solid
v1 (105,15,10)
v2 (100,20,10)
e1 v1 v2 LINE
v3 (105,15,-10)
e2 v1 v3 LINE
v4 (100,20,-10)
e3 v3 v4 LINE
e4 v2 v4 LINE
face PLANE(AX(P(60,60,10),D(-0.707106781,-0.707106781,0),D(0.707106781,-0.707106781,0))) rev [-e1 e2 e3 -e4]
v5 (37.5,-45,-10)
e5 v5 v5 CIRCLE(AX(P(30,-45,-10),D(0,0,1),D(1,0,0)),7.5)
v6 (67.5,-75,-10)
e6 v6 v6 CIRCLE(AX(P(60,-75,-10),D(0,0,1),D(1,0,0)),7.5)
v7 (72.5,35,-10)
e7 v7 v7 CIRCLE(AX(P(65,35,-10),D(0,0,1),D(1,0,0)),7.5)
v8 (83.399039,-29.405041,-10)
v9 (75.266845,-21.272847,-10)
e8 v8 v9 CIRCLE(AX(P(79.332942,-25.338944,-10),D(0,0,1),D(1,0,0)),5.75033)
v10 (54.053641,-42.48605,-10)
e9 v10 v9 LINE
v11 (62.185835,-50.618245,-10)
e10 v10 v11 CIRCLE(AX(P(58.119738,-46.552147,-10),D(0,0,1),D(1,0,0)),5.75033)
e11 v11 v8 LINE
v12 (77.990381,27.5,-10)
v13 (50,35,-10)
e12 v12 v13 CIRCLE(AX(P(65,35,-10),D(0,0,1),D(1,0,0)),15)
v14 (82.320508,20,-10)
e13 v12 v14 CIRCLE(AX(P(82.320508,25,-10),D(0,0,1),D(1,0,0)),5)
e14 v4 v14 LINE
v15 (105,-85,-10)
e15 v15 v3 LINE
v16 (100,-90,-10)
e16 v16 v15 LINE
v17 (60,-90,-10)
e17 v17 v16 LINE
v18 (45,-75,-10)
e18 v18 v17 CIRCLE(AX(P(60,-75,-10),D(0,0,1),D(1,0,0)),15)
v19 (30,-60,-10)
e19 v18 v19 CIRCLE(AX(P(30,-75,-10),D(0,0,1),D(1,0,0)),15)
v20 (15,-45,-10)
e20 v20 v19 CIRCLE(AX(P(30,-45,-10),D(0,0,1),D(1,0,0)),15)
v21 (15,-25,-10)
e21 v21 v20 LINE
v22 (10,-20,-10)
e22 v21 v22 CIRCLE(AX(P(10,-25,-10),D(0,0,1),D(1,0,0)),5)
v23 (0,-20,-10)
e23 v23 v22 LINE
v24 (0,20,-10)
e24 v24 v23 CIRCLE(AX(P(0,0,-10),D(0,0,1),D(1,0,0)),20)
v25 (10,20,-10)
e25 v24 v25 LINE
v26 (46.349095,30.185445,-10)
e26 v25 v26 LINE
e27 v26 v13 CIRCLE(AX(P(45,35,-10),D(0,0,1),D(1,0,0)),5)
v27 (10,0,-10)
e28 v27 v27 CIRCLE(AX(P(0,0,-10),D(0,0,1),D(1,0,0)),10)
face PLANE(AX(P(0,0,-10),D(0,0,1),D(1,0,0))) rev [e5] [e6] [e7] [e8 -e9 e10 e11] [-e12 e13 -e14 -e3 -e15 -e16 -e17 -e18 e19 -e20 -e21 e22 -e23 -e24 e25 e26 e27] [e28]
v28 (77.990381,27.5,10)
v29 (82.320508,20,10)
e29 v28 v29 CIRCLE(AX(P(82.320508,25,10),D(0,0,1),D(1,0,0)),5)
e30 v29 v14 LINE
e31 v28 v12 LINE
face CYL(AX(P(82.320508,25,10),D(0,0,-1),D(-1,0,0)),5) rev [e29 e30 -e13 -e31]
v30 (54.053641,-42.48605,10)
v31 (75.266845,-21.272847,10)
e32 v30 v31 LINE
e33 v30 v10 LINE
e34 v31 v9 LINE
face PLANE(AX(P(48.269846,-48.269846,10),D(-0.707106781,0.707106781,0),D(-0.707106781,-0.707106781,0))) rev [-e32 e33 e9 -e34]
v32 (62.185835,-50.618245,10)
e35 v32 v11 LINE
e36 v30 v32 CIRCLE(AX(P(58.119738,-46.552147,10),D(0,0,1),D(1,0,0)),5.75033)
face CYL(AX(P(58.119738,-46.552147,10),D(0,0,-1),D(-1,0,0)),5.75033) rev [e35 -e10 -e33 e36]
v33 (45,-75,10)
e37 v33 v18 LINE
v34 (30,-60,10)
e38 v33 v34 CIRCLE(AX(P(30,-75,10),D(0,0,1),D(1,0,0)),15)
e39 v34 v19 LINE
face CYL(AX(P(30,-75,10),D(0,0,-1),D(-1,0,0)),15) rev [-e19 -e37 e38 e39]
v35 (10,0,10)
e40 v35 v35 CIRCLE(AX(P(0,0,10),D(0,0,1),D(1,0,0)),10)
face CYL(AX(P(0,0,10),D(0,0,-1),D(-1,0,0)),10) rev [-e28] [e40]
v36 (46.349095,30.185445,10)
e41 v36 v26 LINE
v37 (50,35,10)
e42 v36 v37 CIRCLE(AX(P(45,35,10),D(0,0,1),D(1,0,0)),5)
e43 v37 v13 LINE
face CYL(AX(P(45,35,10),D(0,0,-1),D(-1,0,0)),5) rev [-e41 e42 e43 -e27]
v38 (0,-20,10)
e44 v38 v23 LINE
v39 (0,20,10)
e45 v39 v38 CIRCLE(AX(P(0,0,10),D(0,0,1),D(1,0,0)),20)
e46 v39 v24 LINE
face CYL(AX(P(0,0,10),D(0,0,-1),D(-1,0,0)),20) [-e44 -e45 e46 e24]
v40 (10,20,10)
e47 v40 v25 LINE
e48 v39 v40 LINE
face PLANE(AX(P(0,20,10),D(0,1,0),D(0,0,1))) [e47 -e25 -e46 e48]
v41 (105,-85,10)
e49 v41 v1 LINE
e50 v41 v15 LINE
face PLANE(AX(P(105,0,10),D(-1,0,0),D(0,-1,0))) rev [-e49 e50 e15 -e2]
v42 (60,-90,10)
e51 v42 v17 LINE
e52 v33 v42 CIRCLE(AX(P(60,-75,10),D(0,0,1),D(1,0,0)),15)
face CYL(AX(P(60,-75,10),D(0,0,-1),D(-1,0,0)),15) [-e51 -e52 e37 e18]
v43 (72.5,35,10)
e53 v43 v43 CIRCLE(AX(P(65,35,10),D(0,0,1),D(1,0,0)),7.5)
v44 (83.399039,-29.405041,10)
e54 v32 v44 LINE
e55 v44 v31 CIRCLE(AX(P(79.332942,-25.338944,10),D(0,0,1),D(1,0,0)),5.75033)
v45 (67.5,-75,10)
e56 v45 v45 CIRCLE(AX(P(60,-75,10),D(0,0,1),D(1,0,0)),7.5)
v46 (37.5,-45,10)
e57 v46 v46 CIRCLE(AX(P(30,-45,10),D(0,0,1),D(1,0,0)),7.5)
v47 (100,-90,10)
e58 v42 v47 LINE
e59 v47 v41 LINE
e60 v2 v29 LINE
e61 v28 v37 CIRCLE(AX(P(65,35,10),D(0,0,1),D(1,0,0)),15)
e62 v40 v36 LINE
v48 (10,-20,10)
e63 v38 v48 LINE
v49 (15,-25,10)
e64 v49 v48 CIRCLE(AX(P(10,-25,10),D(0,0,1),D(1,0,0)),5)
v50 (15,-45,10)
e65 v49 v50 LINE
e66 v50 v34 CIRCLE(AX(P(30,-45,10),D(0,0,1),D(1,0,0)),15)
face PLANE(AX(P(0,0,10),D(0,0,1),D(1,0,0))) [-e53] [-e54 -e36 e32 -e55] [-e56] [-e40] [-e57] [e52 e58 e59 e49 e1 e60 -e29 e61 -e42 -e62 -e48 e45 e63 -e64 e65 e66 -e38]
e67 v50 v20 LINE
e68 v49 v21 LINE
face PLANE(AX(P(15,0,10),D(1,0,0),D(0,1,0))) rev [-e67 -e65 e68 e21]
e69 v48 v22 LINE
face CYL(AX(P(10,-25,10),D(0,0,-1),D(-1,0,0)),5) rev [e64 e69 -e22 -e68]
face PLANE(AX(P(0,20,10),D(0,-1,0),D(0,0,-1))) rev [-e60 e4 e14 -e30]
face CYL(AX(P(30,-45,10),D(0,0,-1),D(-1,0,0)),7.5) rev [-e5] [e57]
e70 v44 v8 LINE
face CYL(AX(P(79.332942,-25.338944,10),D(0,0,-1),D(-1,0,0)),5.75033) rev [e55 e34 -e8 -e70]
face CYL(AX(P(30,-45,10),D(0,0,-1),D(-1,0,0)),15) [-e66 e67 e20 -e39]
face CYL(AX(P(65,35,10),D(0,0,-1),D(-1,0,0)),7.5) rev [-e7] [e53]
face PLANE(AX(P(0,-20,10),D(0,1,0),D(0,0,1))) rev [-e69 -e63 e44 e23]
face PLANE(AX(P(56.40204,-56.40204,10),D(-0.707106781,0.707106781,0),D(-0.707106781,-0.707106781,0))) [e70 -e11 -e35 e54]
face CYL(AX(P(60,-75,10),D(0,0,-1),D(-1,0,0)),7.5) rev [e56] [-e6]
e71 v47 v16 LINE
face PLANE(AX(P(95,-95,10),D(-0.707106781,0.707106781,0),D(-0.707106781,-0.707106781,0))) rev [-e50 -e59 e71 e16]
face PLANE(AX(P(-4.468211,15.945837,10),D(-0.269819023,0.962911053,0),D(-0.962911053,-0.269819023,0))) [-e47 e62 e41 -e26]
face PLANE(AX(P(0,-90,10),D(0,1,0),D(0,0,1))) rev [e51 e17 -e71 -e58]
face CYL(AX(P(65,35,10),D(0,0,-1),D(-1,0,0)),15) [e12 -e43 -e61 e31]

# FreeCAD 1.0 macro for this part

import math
import FreeCAD as App
import Part
import Sketcher

V = App.Vector
Q = App.Units.Quantity

doc = App.newDocument("Part")
body = doc.addObject("PartDesign::Body", "Body")

sketch1 = body.newObject("Sketcher::SketchObject", "Sketch")
sketch1.AttachmentSupport = (doc.getObject("XY_Plane"), [""])
sketch1.MapMode = "FlatFace"
sketch1.addGeometry([
    Part.ArcOfCircle(Part.Circle(V(0, 0, 0), V(0, 0, 1), 20), math.radians(90), math.radians(270)),
    Part.LineSegment(V(0, -20, 0), V(10, -20, 0)),
    Part.ArcOfCircle(Part.Circle(V(10, -25, 0), V(0, 0, 1), 5), math.radians(0), math.radians(90)),
    Part.LineSegment(V(15, -25, 0), V(15, -45, 0)),
    Part.ArcOfCircle(Part.Circle(V(30, -45, 0), V(0, 0, 1), 15), math.radians(180), math.radians(270)),
    Part.ArcOfCircle(Part.Circle(V(30, -75, 0), V(0, 0, 1), 15), math.radians(0), math.radians(90)),
    Part.ArcOfCircle(Part.Circle(V(60, -75, 0), V(0, 0, 1), 15), math.radians(180), math.radians(270)),
    Part.LineSegment(V(60, -90, 0), V(100, -90, 0)),
    Part.LineSegment(V(100, -90, 0), V(105, -85, 0)),
    Part.LineSegment(V(105, -85, 0), V(105, 15, 0)),
    Part.LineSegment(V(105, 15, 0), V(100, 20, 0)),
    Part.LineSegment(V(100, 20, 0), V(82, 20, 0)),
    Part.ArcOfCircle(Part.Circle(V(82, 25, 0), V(0, 0, 1), 5), math.radians(150), math.radians(270)),
    Part.ArcOfCircle(Part.Circle(V(65, 35, 0), V(0, 0, 1), 15), math.radians(-30), math.radians(180)),
    Part.ArcOfCircle(Part.Circle(V(45, 35, 0), V(0, 0, 1), 5), math.radians(-74), math.radians(0)),
    Part.LineSegment(V(46, 30, 0), V(10, 20, 0)),
    Part.LineSegment(V(10, 20, 0), V(0, 20, 0)),
    Part.Circle(V(30, -45, 0), V(0, 0, 1), 8),
    Part.Circle(V(60, -75, 0), V(0, 0, 1), 8),
    Part.LineSegment(V(83, -29, 0), V(62, -51, 0)),
    Part.ArcOfCircle(Part.Circle(V(58, -47, 0), V(0, 0, 1), 6), math.radians(135), math.radians(315)),
    Part.LineSegment(V(54, -42, 0), V(75, -21, 0)),
    Part.ArcOfCircle(Part.Circle(V(79, -25, 0), V(0, 0, 1), 6), math.radians(-45), math.radians(135)),
    Part.Circle(V(0, 0, 0), V(0, 0, 1), 10),
    Part.Circle(V(65, 35, 0), V(0, 0, 1), 8),
], False)
sketch1.addConstraint([
    Sketcher.Constraint("Tangent", 0, 2, 1, 1),
    Sketcher.Constraint("Tangent", 1, 2, 2, 2),
    Sketcher.Constraint("Tangent", 2, 1, 3, 1),
    Sketcher.Constraint("Tangent", 3, 2, 4, 1),
    Sketcher.Constraint("Tangent", 4, 2, 5, 2),
    Sketcher.Constraint("Tangent", 5, 1, 6, 1),
    Sketcher.Constraint("Tangent", 6, 2, 7, 1),
    Sketcher.Constraint("Coincident", 7, 2, 8, 1),
    Sketcher.Constraint("Coincident", 8, 2, 9, 1),
    Sketcher.Constraint("Coincident", 9, 2, 10, 1),
    Sketcher.Constraint("Coincident", 10, 2, 11, 1),
    Sketcher.Constraint("Tangent", 11, 2, 12, 2),
    Sketcher.Constraint("Tangent", 12, 1, 13, 1),
    Sketcher.Constraint("Tangent", 13, 2, 14, 2),
    Sketcher.Constraint("Tangent", 14, 1, 15, 1),
    Sketcher.Constraint("Coincident", 15, 2, 16, 1),
    Sketcher.Constraint("Tangent", 16, 2, 0, 1),
    Sketcher.Constraint("Tangent", 19, 2, 20, 2),
    Sketcher.Constraint("Tangent", 20, 1, 21, 1),
    Sketcher.Constraint("Tangent", 21, 2, 22, 2),
    Sketcher.Constraint("Tangent", 22, 1, 19, 1),
    Sketcher.Constraint("Horizontal", 1),
    Sketcher.Constraint("Vertical", 3),
    Sketcher.Constraint("Horizontal", 7),
    Sketcher.Constraint("Vertical", 9),
    Sketcher.Constraint("Horizontal", 11),
    Sketcher.Constraint("Horizontal", 16),
    Sketcher.Constraint("Coincident", 0, 3, -1, 1),
    Sketcher.Constraint("Coincident", 23, 3, -1, 1),
    Sketcher.Constraint("Coincident", 17, 3, 4, 3),
    Sketcher.Constraint("Coincident", 18, 3, 6, 3),
    Sketcher.Constraint("Coincident", 24, 3, 13, 3),
    Sketcher.Constraint("Equal", 4, 5),
    Sketcher.Constraint("Equal", 5, 6),
    Sketcher.Constraint("Equal", 2, 12),
    Sketcher.Constraint("Equal", 6, 13),
    Sketcher.Constraint("Equal", 12, 14),
    Sketcher.Constraint("Equal", 17, 18),
    Sketcher.Constraint("Equal", 20, 22),
    Sketcher.Constraint("Equal", 18, 24),
    Sketcher.Constraint("Perpendicular", 8, 10),
    Sketcher.Constraint("Perpendicular", 10, 19),
    Sketcher.Constraint("Horizontal", 5, 3, 6, 3),
    Sketcher.Constraint("Horizontal", 13, 3, 14, 3),
    Sketcher.Constraint("Horizontal", 11, 2, 15, 2),
    Sketcher.Constraint("Vertical", 4, 3, 5, 3),
    Sketcher.Constraint("Vertical", 14, 3, 5, 1),
    Sketcher.Constraint("Vertical", 7, 2, 10, 2),
    Sketcher.Constraint("Vertical", 1, 2, 15, 2),
    Sketcher.Constraint("Equal", 8, 10),
    Sketcher.Constraint("Diameter", 17, Q("15 mm")),
    Sketcher.Constraint("Diameter", 23, Q("20 mm")),
    Sketcher.Constraint("Radius", 0, Q("20 mm")),
    Sketcher.Constraint("Radius", 2, Q("5 mm")),
    Sketcher.Constraint("Radius", 4, Q("15 mm")),
    Sketcher.Constraint("DistanceX", 1, 1, 1, 2, Q("10 mm")),
    Sketcher.Constraint("DistanceX", 7, 1, 7, 2, Q("40 mm")),
    Sketcher.Constraint("DistanceY", 3, 2, 3, 1, Q("20 mm")),
    Sketcher.Constraint("DistanceY", 9, 1, 9, 2, Q("100 mm")),
    Sketcher.Constraint("Distance", 19, Q("30 mm")),
    Sketcher.Constraint("DistanceY", -1, 1, 13, 3, Q("35 mm")),
    Sketcher.Constraint("Radius", 20, Q("5.75033 mm")),
    Sketcher.Constraint("DistanceX", -1, 1, 20, 3, Q("58.119738 mm")),
    Sketcher.Constraint("DistanceY", 20, 1, -1, 1, Q("42.48605 mm")),
])
pad1 = body.newObject("PartDesign::Pad", "Pad")
pad1.Profile = sketch1
pad1.Length = 20
pad1.Midplane = True

doc.recompute()
